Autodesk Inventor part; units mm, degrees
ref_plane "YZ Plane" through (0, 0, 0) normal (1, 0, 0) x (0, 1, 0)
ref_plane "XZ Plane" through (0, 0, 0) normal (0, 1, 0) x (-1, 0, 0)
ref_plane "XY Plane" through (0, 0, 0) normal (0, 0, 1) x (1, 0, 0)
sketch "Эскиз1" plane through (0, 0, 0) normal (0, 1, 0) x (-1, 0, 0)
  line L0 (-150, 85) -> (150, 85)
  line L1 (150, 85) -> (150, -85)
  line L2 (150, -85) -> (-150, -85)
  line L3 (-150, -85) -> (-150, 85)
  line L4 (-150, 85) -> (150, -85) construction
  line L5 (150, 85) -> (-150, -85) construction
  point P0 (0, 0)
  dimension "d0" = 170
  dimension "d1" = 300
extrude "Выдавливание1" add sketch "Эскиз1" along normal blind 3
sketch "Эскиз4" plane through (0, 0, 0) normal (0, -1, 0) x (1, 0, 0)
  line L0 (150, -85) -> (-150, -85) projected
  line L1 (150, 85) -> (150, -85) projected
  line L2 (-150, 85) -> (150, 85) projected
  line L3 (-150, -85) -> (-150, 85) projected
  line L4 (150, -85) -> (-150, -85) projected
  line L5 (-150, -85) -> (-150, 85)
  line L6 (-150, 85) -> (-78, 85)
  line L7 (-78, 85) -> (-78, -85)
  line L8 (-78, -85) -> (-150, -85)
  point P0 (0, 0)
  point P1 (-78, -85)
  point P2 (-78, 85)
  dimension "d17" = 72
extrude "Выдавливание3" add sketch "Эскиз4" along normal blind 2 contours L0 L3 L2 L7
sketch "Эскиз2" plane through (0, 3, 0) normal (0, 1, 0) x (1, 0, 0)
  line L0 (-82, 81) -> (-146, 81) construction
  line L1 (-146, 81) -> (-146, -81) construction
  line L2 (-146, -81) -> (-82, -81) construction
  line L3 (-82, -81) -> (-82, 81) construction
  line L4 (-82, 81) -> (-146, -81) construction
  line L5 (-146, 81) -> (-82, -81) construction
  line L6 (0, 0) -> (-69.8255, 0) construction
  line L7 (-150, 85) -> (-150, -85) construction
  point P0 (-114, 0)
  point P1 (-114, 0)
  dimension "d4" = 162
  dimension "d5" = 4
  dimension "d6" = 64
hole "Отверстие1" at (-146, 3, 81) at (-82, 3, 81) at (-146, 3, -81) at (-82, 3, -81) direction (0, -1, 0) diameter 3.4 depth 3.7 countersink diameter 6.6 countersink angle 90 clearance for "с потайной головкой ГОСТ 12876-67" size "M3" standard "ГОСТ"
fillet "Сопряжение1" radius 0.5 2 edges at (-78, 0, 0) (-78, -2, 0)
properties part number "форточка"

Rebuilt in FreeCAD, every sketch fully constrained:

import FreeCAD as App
import Part
import Sketcher
Q = App.Units.Quantity


def edges_at(feature, points):
    """Names of the edges that pass closest to the given points."""
    edges = feature.Shape.Edges
    near = lambda p: min(range(len(edges)), key=lambda i: edges[i].distToShape(Part.Vertex(*p))[0])
    return sorted({f"Edge{near(p) + 1}" for p in points})

doc = App.newDocument("Part")
params = doc.addObject("Spreadsheet::Sheet", "Params")
for row, (alias, value) in enumerate([
    ("sketch1_width", "300 mm"),
    ("sketch1_height", "170 mm"),
    ("pad1_length", "3 mm"),
    ("sketch2_width", "72 mm"),
    ("sketch2_height", "170 mm"),
    ("pad2_length", "2 mm"),
    ("sketch3_diameter", "3.4 mm"),
    ("hole_diameter", "3.4 mm"),
    ("hole_depth", "3.7 mm"),
    ("hole_csink_diameter", "6.6 mm"),
    ("fillet_radius", "0.5 mm"),
], start=1):
    params.set(f"A{row}", alias)
    params.set(f"B{row}", "=" + value)
    params.setAlias(f"B{row}", alias)

body = doc.addObject("PartDesign::Body", "Body")

sketch1 = body.newObject("Sketcher::SketchObject", "Sketch")
sketch1.AttachmentSupport = (doc.getObject("XZ_Plane"), [""])
sketch1.MapMode = "FlatFace"
sketch1.addGeometry([
    Part.LineSegment(App.Vector(-150, 85, 0), App.Vector(150, 85, 0)),
    Part.LineSegment(App.Vector(150, 85, 0), App.Vector(150, -85, 0)),
    Part.LineSegment(App.Vector(150, -85, 0), App.Vector(-150, -85, 0)),
    Part.LineSegment(App.Vector(-150, -85, 0), App.Vector(-150, 85, 0)),
], False)
sketch1.addConstraint([
    Sketcher.Constraint("Coincident", 0, 2, 1, 1),
    Sketcher.Constraint("Coincident", 1, 2, 2, 1),
    Sketcher.Constraint("Coincident", 2, 2, 3, 1),
    Sketcher.Constraint("Coincident", 3, 2, 0, 1),
    Sketcher.Constraint("Horizontal", 0),
    Sketcher.Constraint("Vertical", 1),
    Sketcher.Constraint("Horizontal", 2),
    Sketcher.Constraint("Vertical", 3),
    Sketcher.Constraint("Symmetric", 0, 2, 2, 2, -1, 1),
    Sketcher.Constraint("DistanceX", 0, 1, 0, 2, Q("300 mm")),
    Sketcher.Constraint("DistanceY", 1, 2, 1, 1, Q("170 mm")),
])
sketch1.setExpression("Constraints[9]", "Params.sketch1_width")
sketch1.setExpression("Constraints[10]", "Params.sketch1_height")
pad1 = body.newObject("PartDesign::Pad", "Pad")
pad1.Profile = sketch1
pad1.setExpression("Length", "Params.pad1_length")
pad1.Reversed = True

sketch2 = body.newObject("Sketcher::SketchObject", "Sketch001")
sketch2.AttachmentSupport = (doc.getObject("XZ_Plane"), [""])
sketch2.MapMode = "FlatFace"
sketch2.addGeometry([
    Part.LineSegment(App.Vector(-150, -85, 0), App.Vector(-78, -85, 0)),
    Part.LineSegment(App.Vector(-78, -85, 0), App.Vector(-78, 85, 0)),
    Part.LineSegment(App.Vector(-78, 85, 0), App.Vector(-150, 85, 0)),
    Part.LineSegment(App.Vector(-150, 85, 0), App.Vector(-150, -85, 0)),
], False)
sketch2.addConstraint([
    Sketcher.Constraint("Coincident", 0, 2, 1, 1),
    Sketcher.Constraint("Coincident", 1, 2, 2, 1),
    Sketcher.Constraint("Coincident", 2, 2, 3, 1),
    Sketcher.Constraint("Coincident", 3, 2, 0, 1),
    Sketcher.Constraint("Horizontal", 0),
    Sketcher.Constraint("Vertical", 1),
    Sketcher.Constraint("Horizontal", 2),
    Sketcher.Constraint("Vertical", 3),
    Sketcher.Constraint("DistanceX", 0, 1, 0, 2, Q("72 mm")),
    Sketcher.Constraint("DistanceY", 1, 1, 1, 2, Q("170 mm")),
    Sketcher.Constraint("DistanceX", 0, 2, -1, 1, Q("78 mm")),
    Sketcher.Constraint("DistanceY", 0, 2, -1, 1, Q("85 mm")),
])
sketch2.setExpression("Constraints[8]", "Params.sketch2_width")
sketch2.setExpression("Constraints[9]", "Params.sketch2_height")
pad2 = body.newObject("PartDesign::Pad", "Pad001")
pad2.Profile = sketch2
pad2.setExpression("Length", "Params.pad2_length")

sketch3 = body.newObject("Sketcher::SketchObject", "Sketch002")
sketch3.AttachmentSupport = (doc.getObject("XZ_Plane"), [""])
sketch3.MapMode = "FlatFace"
sketch3.AttachmentOffset = App.Placement(App.Vector(0, 0, -3), App.Rotation())
sketch3.addGeometry([
    Part.Circle(App.Vector(-146, 81, 0), App.Vector(0, 0, 1), 1.7),
    Part.Circle(App.Vector(-82, 81, 0), App.Vector(0, 0, 1), 1.7),
    Part.Circle(App.Vector(-146, -81, 0), App.Vector(0, 0, 1), 1.7),
    Part.Circle(App.Vector(-82, -81, 0), App.Vector(0, 0, 1), 1.7),
], False)
sketch3.addConstraint([
    Sketcher.Constraint("Equal", 0, 1),
    Sketcher.Constraint("Equal", 1, 2),
    Sketcher.Constraint("Equal", 2, 3),
    Sketcher.Constraint("Symmetric", 0, 3, 2, 3, -1),
    Sketcher.Constraint("Symmetric", 1, 3, 3, 3, -1),
    Sketcher.Constraint("Horizontal", 0, 3, 1, 3),
    Sketcher.Constraint("Diameter", 0, Q("3.4 mm")),
    Sketcher.Constraint("DistanceX", 0, 3, -1, 1, Q("146 mm")),
    Sketcher.Constraint("DistanceY", -1, 1, 0, 3, Q("81 mm")),
    Sketcher.Constraint("DistanceX", 1, 3, -1, 1, Q("82 mm")),
])
sketch3.setExpression("Constraints[6]", "Params.sketch3_diameter")
doc.recompute()
hole = body.newObject("PartDesign::Hole", "Hole")
hole.Profile = sketch3
hole.ThreadType = "None"
hole.setExpression("Diameter", "Params.hole_diameter")
hole.DepthType = "Dimension"
hole.setExpression("Depth", "Params.hole_depth")
hole.DrillPoint = "Flat"
hole.HoleCutType = "Countersink"
hole.setExpression("HoleCutDiameter", "Params.hole_csink_diameter")
hole.HoleCutCountersinkAngle = 90
hole.Reversed = True
doc.recompute()

fillet = body.newObject("PartDesign::Fillet", "Fillet")
fillet.Base = (hole, edges_at(hole, [(-78, 0, 0), (-78, -2, 0)]))
fillet.setExpression("Radius", "Params.fillet_radius")

doc.recompute()
